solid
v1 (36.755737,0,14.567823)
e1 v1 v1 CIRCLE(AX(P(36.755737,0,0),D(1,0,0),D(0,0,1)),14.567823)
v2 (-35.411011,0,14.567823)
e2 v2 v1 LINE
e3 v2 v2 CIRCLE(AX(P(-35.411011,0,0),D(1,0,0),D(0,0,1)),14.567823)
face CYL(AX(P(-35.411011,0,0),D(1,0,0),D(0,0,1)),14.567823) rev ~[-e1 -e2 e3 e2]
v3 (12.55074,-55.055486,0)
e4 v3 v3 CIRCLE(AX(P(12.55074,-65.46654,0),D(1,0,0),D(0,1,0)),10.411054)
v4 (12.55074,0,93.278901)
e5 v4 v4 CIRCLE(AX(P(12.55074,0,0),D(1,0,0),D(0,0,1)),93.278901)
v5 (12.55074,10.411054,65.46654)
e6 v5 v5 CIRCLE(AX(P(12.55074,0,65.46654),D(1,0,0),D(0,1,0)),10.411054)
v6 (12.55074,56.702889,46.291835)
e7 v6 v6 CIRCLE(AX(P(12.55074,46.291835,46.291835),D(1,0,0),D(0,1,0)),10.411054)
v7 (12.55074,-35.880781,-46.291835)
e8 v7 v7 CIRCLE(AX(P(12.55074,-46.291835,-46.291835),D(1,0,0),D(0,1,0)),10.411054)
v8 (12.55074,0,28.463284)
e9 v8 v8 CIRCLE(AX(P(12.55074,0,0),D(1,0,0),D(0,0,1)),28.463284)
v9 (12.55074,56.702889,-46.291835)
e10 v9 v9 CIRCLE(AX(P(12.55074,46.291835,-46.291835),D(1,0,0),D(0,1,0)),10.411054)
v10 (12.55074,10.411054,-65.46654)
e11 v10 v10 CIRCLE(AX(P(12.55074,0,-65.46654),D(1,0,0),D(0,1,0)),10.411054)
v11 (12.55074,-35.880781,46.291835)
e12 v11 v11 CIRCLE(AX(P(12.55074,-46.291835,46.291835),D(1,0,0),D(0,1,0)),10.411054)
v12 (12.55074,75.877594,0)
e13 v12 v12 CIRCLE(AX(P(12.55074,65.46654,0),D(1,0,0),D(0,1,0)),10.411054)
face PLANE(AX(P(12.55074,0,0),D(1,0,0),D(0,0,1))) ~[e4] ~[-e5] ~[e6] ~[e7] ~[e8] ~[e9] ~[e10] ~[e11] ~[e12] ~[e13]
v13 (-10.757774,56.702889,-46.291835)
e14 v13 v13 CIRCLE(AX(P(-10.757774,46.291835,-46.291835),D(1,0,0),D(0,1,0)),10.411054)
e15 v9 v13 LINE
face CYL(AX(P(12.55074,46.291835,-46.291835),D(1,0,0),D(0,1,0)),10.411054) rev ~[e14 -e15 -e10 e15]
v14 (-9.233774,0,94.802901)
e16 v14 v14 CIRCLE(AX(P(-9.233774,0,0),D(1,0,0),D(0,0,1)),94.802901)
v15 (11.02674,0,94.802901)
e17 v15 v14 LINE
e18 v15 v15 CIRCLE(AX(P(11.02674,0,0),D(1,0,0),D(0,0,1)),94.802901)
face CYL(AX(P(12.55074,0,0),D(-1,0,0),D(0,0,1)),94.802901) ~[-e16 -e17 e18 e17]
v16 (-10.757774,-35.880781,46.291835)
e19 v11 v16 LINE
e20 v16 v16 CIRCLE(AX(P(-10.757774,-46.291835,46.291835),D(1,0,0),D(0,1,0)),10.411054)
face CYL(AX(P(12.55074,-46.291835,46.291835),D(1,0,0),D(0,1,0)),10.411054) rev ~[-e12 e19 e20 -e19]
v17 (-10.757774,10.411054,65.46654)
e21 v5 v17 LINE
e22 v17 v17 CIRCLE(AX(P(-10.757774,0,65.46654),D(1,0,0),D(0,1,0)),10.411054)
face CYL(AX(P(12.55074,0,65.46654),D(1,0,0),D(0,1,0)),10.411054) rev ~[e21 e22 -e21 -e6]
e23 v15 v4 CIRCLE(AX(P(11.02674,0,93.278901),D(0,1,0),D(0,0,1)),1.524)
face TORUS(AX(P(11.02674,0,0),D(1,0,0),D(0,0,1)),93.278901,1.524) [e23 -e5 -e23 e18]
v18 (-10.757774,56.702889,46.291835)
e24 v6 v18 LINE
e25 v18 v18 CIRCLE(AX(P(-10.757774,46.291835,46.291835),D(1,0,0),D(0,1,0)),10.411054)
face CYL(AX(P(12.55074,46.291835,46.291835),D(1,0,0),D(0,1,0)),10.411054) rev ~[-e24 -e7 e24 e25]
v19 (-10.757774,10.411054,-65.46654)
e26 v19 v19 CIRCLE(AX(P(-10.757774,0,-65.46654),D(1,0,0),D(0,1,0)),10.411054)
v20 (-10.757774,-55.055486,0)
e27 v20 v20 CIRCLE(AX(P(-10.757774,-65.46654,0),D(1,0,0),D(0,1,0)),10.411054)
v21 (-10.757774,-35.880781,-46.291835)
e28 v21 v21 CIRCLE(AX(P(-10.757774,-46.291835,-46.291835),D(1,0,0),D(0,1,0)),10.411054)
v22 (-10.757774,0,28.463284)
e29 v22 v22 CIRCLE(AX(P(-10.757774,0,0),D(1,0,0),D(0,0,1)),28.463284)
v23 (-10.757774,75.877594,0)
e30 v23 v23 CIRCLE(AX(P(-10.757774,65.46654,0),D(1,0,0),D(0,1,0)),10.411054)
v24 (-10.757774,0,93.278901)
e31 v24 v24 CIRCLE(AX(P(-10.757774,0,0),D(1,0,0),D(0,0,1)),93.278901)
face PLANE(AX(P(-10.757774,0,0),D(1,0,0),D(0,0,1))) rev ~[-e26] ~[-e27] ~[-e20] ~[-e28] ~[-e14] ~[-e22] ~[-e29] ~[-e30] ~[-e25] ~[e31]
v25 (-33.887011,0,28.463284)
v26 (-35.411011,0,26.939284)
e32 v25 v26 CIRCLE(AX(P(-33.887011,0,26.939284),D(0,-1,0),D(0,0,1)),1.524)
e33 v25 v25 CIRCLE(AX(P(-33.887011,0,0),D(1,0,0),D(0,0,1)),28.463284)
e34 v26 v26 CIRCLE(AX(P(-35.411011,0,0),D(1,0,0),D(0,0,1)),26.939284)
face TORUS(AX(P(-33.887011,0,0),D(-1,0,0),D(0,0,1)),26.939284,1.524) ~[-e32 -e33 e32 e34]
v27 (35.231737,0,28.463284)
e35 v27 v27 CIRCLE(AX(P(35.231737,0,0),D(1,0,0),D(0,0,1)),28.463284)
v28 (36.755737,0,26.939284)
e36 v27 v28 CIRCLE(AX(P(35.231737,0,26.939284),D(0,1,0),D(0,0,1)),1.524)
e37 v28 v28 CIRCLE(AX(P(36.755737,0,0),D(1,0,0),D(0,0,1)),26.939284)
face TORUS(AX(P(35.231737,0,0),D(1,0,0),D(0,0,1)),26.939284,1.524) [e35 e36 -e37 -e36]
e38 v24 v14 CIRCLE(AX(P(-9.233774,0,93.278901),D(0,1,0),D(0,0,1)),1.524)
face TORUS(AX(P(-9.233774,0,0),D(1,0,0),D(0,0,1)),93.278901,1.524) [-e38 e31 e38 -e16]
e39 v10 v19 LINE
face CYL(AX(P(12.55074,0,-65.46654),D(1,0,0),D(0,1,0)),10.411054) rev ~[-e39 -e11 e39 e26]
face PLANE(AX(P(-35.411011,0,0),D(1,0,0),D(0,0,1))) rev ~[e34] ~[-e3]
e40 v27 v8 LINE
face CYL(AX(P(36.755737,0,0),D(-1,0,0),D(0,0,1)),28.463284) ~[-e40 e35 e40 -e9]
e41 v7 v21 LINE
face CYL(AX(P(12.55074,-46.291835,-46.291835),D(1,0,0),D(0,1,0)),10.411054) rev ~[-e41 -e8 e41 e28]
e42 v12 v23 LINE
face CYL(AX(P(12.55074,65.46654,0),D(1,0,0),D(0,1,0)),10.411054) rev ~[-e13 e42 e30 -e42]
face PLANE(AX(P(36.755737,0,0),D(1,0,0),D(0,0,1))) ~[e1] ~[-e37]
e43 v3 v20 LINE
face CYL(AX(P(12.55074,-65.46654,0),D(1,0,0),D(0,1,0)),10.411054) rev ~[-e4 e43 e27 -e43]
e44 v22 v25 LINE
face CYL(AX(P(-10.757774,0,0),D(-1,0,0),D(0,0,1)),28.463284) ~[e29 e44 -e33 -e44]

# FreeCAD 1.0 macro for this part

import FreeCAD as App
import Part
import Sketcher
from FreeCAD import Vector
Q = App.Units.Quantity


def edges_at(feature, points):
    """Names of the edges that pass closest to the given points."""
    edges = feature.Shape.Edges
    near = lambda p: min(range(len(edges)), key=lambda i: edges[i].distToShape(Part.Vertex(*p))[0])
    return sorted({f"Edge{near(p) + 1}" for p in points})

doc = App.newDocument("Part")
params = doc.addObject("Spreadsheet::Sheet", "Params")
for row, (alias, value) in enumerate([
    ("revolution_angle", "360 deg"),
    ("fillet_radius", "0.06 in"),
    ("fillet2_radius", "0.06 in"),
], start=1):
    params.set(f"A{row}", alias)
    params.set(f"B{row}", "=" + value)
    params.setAlias(f"B{row}", alias)

body = doc.addObject("PartDesign::Body", "Body")

# Sketch on XZ plane
sketch1 = body.newObject("Sketcher::SketchObject", "Sketch")
sketch1.AttachmentSupport = (doc.getObject("XZ_Plane"), [""])
sketch1.MapMode = "FlatFace"
sketch1.addGeometry(Part.LineSegment(Vector(-35, 28, 0), Vector(-35, 15, 0)), False)
sketch1.addGeometry(Part.LineSegment(Vector(-35, 15, 0), Vector(37, 15, 0)), False)
sketch1.addGeometry(Part.LineSegment(Vector(37, 15, 0), Vector(37, 28, 0)), False)
sketch1.addGeometry(Part.LineSegment(Vector(37, 28, 0), Vector(13, 28, 0)), False)
sketch1.addGeometry(Part.LineSegment(Vector(13, 28, 0), Vector(13, 95, 0)), False)
sketch1.addGeometry(Part.LineSegment(Vector(13, 95, 0), Vector(-11, 95, 0)), False)
sketch1.addGeometry(Part.LineSegment(Vector(-11, 95, 0), Vector(-11, 28, 0)), False)
sketch1.addGeometry(Part.LineSegment(Vector(-11, 28, 0), Vector(-35, 28, 0)), False)
sketch1.addConstraint(Sketcher.Constraint("Coincident", 0, 2, 1, 1))
sketch1.addConstraint(Sketcher.Constraint("Coincident", 1, 2, 2, 1))
sketch1.addConstraint(Sketcher.Constraint("Coincident", 2, 2, 3, 1))
sketch1.addConstraint(Sketcher.Constraint("Coincident", 3, 2, 4, 1))
sketch1.addConstraint(Sketcher.Constraint("Coincident", 4, 2, 5, 1))
sketch1.addConstraint(Sketcher.Constraint("Coincident", 5, 2, 6, 1))
sketch1.addConstraint(Sketcher.Constraint("Coincident", 6, 2, 7, 1))
sketch1.addConstraint(Sketcher.Constraint("Coincident", 7, 2, 0, 1))
sketch1.addConstraint(Sketcher.Constraint("Vertical", 0))
sketch1.addConstraint(Sketcher.Constraint("Horizontal", 1))
sketch1.addConstraint(Sketcher.Constraint("Vertical", 2))
sketch1.addConstraint(Sketcher.Constraint("Horizontal", 3))
sketch1.addConstraint(Sketcher.Constraint("Vertical", 4))
sketch1.addConstraint(Sketcher.Constraint("Horizontal", 5))
sketch1.addConstraint(Sketcher.Constraint("Vertical", 6))
sketch1.addConstraint(Sketcher.Constraint("Horizontal", 7))
sketch1.addConstraint(Sketcher.Constraint("Horizontal", 3, 2, 6, 2))
sketch1.addConstraint(Sketcher.Constraint("DistanceX", 7, 2, 7, 1, Q("0.9705999 in")))
sketch1.addConstraint(Sketcher.Constraint("DistanceX", 1, 1, 1, 2, 72.166748))
sketch1.addConstraint(Sketcher.Constraint("DistanceY", 0, 2, 0, 1, 13.895461))
sketch1.addConstraint(Sketcher.Constraint("DistanceY", -1, 1, 4, 2, 94.802901))
sketch1.addConstraint(Sketcher.Constraint("DistanceX", 3, 2, 3, 1, 24.204997))
sketch1.addConstraint(Sketcher.Constraint("DistanceY", 4, 1, 4, 2, 66.339617))
sketch1.addConstraint(Sketcher.Constraint("DistanceX", 0, 2, -1, 1, 35.411011))
revolution = body.newObject("PartDesign::Revolution", "Revolution")
revolution.Profile = sketch1
revolution.ReferenceAxis = (sketch1, ["H_Axis"])
revolution.setExpression("Angle", "Params.revolution_angle")

# Sketch on YZ plane
sketch2 = body.newObject("Sketcher::SketchObject", "Sketch001")
sketch2.AttachmentSupport = (doc.getObject("YZ_Plane"), [""])
sketch2.MapMode = "FlatFace"
sketch2.AttachmentOffset = App.Placement(Vector(0, 0, 12.55074), App.Rotation())
sketch2.addGeometry(Part.Circle(Vector(0, 65, 0), Vector(0, 0, 1), 10), False)
sketch2.addGeometry(Part.Circle(Vector(-46, 46, 0), Vector(0, 0, 1), 10), False)
sketch2.addGeometry(Part.Circle(Vector(-65, 0, 0), Vector(0, 0, 1), 10), False)
sketch2.addGeometry(Part.Circle(Vector(-46, -46, 0), Vector(0, 0, 1), 10), False)
sketch2.addGeometry(Part.Circle(Vector(0, -65, 0), Vector(0, 0, 1), 10), False)
sketch2.addGeometry(Part.Circle(Vector(46, -46, 0), Vector(0, 0, 1), 10), False)
sketch2.addGeometry(Part.Circle(Vector(65, 0, 0), Vector(0, 0, 1), 10), False)
sketch2.addGeometry(Part.Circle(Vector(46, 46, 0), Vector(0, 0, 1), 10), False)
sketch2.addConstraint(Sketcher.Constraint("Equal", 0, 1))
sketch2.addConstraint(Sketcher.Constraint("Equal", 1, 2))
sketch2.addConstraint(Sketcher.Constraint("Equal", 2, 3))
sketch2.addConstraint(Sketcher.Constraint("Equal", 3, 4))
sketch2.addConstraint(Sketcher.Constraint("Equal", 4, 5))
sketch2.addConstraint(Sketcher.Constraint("Equal", 5, 6))
sketch2.addConstraint(Sketcher.Constraint("Equal", 6, 7))
sketch2.addConstraint(Sketcher.Constraint("Symmetric", 0, 3, 4, 3, -1, 1))
sketch2.addConstraint(Sketcher.Constraint("Symmetric", 1, 3, 5, 3, -1, 1))
sketch2.addConstraint(Sketcher.Constraint("Symmetric", 2, 3, 6, 3, -1, 1))
sketch2.addConstraint(Sketcher.Constraint("Symmetric", 3, 3, 7, 3, -1, 1))
sketch2.addConstraint(Sketcher.Constraint("Symmetric", 3, 3, 5, 3, -2))
sketch2.addConstraint(Sketcher.Constraint("PointOnObject", 0, 3, -2))
sketch2.addConstraint(Sketcher.Constraint("PointOnObject", 2, 3, -1))
sketch2.addConstraint(Sketcher.Constraint("Diameter", 0, 20.822108))
sketch2.addConstraint(Sketcher.Constraint("DistanceY", -1, 1, 0, 3, 65.46654))
sketch2.addConstraint(Sketcher.Constraint("DistanceX", 2, 3, -1, 1, 65.46654))
sketch2.addConstraint(Sketcher.Constraint("DistanceY", 3, 3, 1, 3, 92.58367))
sketch2.addConstraint(Sketcher.Constraint("DistanceX", 3, 3, 5, 3, 92.58367))
pocket1 = body.newObject("PartDesign::Pocket", "Pocket")
pocket1.Profile = sketch2
pocket1.Type = "ThroughAll"
doc.recompute()

fillet = body.newObject("PartDesign::Fillet", "Fillet")
fillet.Base = (pocket1, edges_at(pocket1, [(-10.758, 0, -94.803)]))
fillet.setExpression("Radius", "Params.fillet_radius")
doc.recompute()

fillet2 = body.newObject("PartDesign::Fillet", "Fillet001")
fillet2.Base = (fillet, edges_at(fillet, [(12.551, 0, -94.803), (36.756, 0, -28.463), (-35.411, 0, -28.463)]))
fillet2.setExpression("Radius", "Params.fillet2_radius")

doc.recompute()
